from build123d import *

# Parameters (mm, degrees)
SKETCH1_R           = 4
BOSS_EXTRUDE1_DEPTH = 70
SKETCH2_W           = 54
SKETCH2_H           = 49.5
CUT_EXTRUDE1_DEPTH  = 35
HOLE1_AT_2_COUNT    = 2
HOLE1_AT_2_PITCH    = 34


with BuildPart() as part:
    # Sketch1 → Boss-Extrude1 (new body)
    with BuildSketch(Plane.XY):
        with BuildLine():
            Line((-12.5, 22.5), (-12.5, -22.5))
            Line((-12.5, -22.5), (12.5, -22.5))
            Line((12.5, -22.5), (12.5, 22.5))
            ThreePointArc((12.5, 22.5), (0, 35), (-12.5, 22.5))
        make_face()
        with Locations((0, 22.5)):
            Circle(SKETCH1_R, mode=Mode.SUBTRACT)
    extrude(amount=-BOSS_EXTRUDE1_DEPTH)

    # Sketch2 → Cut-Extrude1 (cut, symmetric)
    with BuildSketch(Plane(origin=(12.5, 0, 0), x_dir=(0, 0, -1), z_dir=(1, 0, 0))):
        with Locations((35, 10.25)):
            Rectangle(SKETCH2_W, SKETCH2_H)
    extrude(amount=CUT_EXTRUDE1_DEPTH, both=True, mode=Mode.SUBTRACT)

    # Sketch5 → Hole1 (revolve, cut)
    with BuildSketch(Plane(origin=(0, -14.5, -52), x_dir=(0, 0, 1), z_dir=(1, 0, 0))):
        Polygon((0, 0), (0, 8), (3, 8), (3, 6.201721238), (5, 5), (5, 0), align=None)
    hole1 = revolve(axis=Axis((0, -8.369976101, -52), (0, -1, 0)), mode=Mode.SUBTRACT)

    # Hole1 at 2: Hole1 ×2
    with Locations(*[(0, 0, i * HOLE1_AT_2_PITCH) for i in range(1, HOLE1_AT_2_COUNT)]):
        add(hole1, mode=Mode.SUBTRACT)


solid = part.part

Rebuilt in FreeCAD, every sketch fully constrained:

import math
import FreeCAD as App
import Part
import Sketcher
Q = App.Units.Quantity

doc = App.newDocument("Part")
body = doc.addObject("PartDesign::Body", "Body")

# Sketch on XY plane
sketch1 = body.newObject("Sketcher::SketchObject", "Sketch")
sketch1.AttachmentSupport = (doc.getObject("XY_Plane"), [""])
sketch1.MapMode = "FlatFace"
sketch1.addGeometry([
    Part.LineSegment(App.Vector(-12.5, 22.5, 0), App.Vector(-12.5, -22.5, 0)),  # 0
    Part.LineSegment(App.Vector(-12.5, -22.5, 0), App.Vector(12.5, -22.5, 0)),  # 1
    Part.LineSegment(App.Vector(12.5, -22.5, 0), App.Vector(12.5, 22.5, 0)),  # 2
    Part.ArcOfCircle(Part.Circle(App.Vector(0, 22.5, 0), App.Vector(0, 0, 1), 12.5), math.radians(0), math.radians(180)),  # 3
    Part.Circle(App.Vector(0, 22.5, 0), App.Vector(0, 0, 1), 4),  # 4
], False)
sketch1.addConstraint([
    Sketcher.Constraint("Coincident", 0, 2, 1, 1),
    Sketcher.Constraint("Coincident", 1, 2, 2, 1),
    Sketcher.Constraint("Tangent", 2, 2, 3, 1),
    Sketcher.Constraint("Tangent", 3, 2, 0, 1),
    Sketcher.Constraint("Vertical", 0),
    Sketcher.Constraint("Horizontal", 1),
    Sketcher.Constraint("Vertical", 2),
    Sketcher.Constraint("Coincident", 4, 3, 3, 3),
    Sketcher.Constraint("Symmetric", 0, 2, 2, 2, -1, 1),
    Sketcher.Constraint("Diameter", 4, Q("8 mm")),
    Sketcher.Constraint("Radius", 3, Q("12.5 mm")),
    Sketcher.Constraint("DistanceY", 0, 2, 0, 1, Q("45 mm")),
])
pad1 = body.newObject("PartDesign::Pad", "Pad")
pad1.Profile = sketch1
pad1.Length = 70
pad1.Reversed = True

# Sketch on YZ plane
sketch2 = body.newObject("Sketcher::SketchObject", "Sketch001")
sketch2.AttachmentSupport = (doc.getObject("YZ_Plane"), [""])
sketch2.MapMode = "FlatFace"
sketch2.AttachmentOffset = App.Placement(App.Vector(0, 0, 12.5), App.Rotation())
sketch2.addGeometry([
    Part.LineSegment(App.Vector(35, -8, 0), App.Vector(-14, -8, 0)),
    Part.LineSegment(App.Vector(-14, -8, 0), App.Vector(-14, -62, 0)),
    Part.LineSegment(App.Vector(-14, -62, 0), App.Vector(35, -62, 0)),
    Part.LineSegment(App.Vector(35, -62, 0), App.Vector(35, -8, 0)),
], False)
sketch2.addConstraint([
    Sketcher.Constraint("Coincident", 0, 2, 1, 1),
    Sketcher.Constraint("Coincident", 1, 2, 2, 1),
    Sketcher.Constraint("Coincident", 2, 2, 3, 1),
    Sketcher.Constraint("Coincident", 3, 2, 0, 1),
    Sketcher.Constraint("Horizontal", 0),
    Sketcher.Constraint("Vertical", 1),
    Sketcher.Constraint("Horizontal", 2),
    Sketcher.Constraint("Vertical", 3),
    Sketcher.Constraint("DistanceY", 1, 2, 1, 1, Q("54 mm")),
    Sketcher.Constraint("DistanceX", 0, 2, 0, 1, Q("49.5 mm")),
    Sketcher.Constraint("DistanceY", 0, 2, -1, 1, Q("8 mm")),
    Sketcher.Constraint("DistanceX", -1, 1, 2, 2, Q("35 mm")),
])
pocket1 = body.newObject("PartDesign::Pocket", "Pocket")
pocket1.Profile = sketch2
pocket1.Length = 70
pocket1.Midplane = True

# Sketch on YZ plane
sketch3 = body.newObject("Sketcher::SketchObject", "Sketch002")
sketch3.AttachmentSupport = (doc.getObject("YZ_Plane"), [""])
sketch3.MapMode = "FlatFace"
sketch3.addGeometry([
    Part.LineSegment(App.Vector(-22.5, -52, 0), App.Vector(-14.5, -52, 0)),  # 0
    Part.LineSegment(App.Vector(-14.5, -52, 0), App.Vector(-14.5, -47, 0)),  # 1
    Part.LineSegment(App.Vector(-14.5, -47, 0), App.Vector(-19.5, -47, 0)),  # 2
    Part.LineSegment(App.Vector(-19.5, -47, 0), App.Vector(-20.7, -49, 0)),  # 3
    Part.LineSegment(App.Vector(-20.7, -49, 0), App.Vector(-22.5, -49, 0)),  # 4
    Part.LineSegment(App.Vector(-22.5, -49, 0), App.Vector(-22.5, -52, 0)),  # 5
], False)
sketch3.addGeometry(Part.LineSegment(App.Vector(-14.5, -52, 0), App.Vector(-22.5, -52, 0)), True)  # axis
sketch3.addConstraint([
    Sketcher.Constraint("Coincident", 0, 2, 1, 1),
    Sketcher.Constraint("Coincident", 1, 2, 2, 1),
    Sketcher.Constraint("Coincident", 2, 2, 3, 1),
    Sketcher.Constraint("Coincident", 3, 2, 4, 1),
    Sketcher.Constraint("Coincident", 4, 2, 5, 1),
    Sketcher.Constraint("Coincident", 5, 2, 0, 1),
    Sketcher.Constraint("Horizontal", 0),
    Sketcher.Constraint("Vertical", 1),
    Sketcher.Constraint("Horizontal", 2),
    Sketcher.Constraint("Horizontal", 4),
    Sketcher.Constraint("Vertical", 5),
    Sketcher.Constraint("Horizontal", 6),
    Sketcher.Constraint("Coincident", 6, 1, 0, 2),
    Sketcher.Constraint("Vertical", 4, 2, 6, 2),
    Sketcher.Constraint("Equal", 2, 1),
    Sketcher.Constraint("DistanceX", 0, 1, 0, 2, Q("8 mm")),
    Sketcher.Constraint("DistanceX", 2, 2, 2, 1, Q("5 mm")),
    Sketcher.Constraint("DistanceY", 5, 2, 5, 1, Q("3 mm")),
    Sketcher.Constraint("Angle", 3, Q("-121 deg")),
    Sketcher.Constraint("DistanceY", 0, 2, -1, 1, Q("52 mm")),
    Sketcher.Constraint("DistanceX", 0, 2, -1, 1, Q("14.5 mm")),
])
groove = body.newObject("PartDesign::Groove", "Groove")
groove.Profile = sketch3
groove.ReferenceAxis = (sketch3, ["Axis0"])
groove.Angle = 360
doc.recompute()

linearpattern = body.newObject("PartDesign::LinearPattern", "LinearPattern")
linearpattern.Originals = [groove]
linearpattern.Direction = (doc.getObject("Z_Axis"), [""])
linearpattern.Mode = "offset"
linearpattern.Offset = 34
linearpattern.Occurrences = 2
body.Tip = linearpattern

doc.recompute()
